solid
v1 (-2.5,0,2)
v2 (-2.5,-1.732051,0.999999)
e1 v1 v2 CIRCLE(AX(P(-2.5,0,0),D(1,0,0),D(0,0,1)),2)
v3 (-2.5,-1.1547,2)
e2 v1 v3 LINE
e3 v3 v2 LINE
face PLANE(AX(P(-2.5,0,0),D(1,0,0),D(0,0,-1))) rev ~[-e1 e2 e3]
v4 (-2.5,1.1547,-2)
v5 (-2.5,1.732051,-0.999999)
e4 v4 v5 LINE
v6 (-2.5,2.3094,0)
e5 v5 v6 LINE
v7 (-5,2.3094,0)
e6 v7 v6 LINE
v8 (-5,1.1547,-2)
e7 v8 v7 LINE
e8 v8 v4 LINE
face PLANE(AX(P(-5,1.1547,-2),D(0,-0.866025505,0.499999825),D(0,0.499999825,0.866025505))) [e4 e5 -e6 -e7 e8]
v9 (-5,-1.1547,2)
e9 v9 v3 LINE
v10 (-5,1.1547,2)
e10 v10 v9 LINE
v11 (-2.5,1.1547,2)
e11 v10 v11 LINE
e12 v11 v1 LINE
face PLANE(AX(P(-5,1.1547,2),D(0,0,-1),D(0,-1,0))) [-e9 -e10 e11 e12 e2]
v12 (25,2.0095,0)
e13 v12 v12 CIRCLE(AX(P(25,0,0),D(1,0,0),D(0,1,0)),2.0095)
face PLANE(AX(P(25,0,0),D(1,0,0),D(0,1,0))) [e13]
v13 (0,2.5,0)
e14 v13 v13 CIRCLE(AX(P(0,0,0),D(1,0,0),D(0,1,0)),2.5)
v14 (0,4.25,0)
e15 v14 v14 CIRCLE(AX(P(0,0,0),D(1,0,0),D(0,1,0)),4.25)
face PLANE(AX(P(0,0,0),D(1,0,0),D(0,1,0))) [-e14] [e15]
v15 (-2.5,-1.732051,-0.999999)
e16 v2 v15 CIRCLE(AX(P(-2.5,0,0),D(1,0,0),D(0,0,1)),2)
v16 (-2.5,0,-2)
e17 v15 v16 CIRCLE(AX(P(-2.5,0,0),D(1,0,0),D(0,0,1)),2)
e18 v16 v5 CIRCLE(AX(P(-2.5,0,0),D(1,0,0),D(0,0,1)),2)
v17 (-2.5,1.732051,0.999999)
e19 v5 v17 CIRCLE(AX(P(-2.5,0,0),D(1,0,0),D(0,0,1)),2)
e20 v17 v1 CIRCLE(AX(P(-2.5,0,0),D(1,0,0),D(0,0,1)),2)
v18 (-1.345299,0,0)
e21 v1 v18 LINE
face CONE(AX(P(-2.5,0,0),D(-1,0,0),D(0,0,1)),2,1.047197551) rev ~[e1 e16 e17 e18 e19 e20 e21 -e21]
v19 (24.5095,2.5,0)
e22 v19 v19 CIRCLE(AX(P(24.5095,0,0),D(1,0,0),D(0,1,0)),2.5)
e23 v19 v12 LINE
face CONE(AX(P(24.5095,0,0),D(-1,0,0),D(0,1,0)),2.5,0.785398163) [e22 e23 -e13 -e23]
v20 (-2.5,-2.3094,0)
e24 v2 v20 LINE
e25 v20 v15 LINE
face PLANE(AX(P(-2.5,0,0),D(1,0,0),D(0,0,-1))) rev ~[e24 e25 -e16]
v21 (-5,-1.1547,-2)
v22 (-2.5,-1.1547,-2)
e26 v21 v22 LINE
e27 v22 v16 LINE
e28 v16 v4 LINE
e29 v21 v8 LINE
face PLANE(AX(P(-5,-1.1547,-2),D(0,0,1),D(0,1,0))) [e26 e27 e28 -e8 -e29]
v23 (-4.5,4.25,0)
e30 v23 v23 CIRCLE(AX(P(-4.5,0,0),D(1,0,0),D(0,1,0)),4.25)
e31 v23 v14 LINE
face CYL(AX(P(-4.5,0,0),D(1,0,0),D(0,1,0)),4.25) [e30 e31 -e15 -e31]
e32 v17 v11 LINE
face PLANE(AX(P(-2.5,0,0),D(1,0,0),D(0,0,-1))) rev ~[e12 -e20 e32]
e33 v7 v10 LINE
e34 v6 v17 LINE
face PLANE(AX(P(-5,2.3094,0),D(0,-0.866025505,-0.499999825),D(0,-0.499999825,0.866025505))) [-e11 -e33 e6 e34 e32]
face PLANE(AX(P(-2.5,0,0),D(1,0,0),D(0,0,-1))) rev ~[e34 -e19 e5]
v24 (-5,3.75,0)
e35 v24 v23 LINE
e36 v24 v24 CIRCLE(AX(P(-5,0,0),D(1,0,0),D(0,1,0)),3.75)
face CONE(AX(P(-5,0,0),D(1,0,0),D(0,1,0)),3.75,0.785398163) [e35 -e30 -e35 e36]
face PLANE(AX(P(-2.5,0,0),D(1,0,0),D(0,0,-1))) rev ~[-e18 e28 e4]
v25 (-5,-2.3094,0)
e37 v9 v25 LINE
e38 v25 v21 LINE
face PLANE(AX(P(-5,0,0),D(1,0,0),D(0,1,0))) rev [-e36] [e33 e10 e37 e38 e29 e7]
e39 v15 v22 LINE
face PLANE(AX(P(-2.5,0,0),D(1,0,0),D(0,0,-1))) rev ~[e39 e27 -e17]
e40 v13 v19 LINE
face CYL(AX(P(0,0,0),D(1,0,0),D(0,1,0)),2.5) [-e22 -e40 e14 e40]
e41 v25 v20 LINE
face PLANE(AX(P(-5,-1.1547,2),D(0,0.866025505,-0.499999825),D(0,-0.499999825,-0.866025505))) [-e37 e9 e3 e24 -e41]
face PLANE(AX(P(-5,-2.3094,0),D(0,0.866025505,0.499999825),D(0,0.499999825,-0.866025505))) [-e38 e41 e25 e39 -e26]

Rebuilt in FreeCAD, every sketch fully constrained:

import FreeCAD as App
import Part
import Sketcher
Q = App.Units.Quantity

doc = App.newDocument("Part")
body = doc.addObject("PartDesign::Body", "Body")

# Sketch on XY plane
sketch1 = doc.addObject("Sketcher::SketchObject", "Sketch")
body.addObject(sketch1)
sketch1.AttachmentSupport = (doc.XY_Plane, [""])
sketch1.MapMode = "FlatFace"
sketch1.addGeometry([
    Part.LineSegment(App.Vector(-5, 0, 0), App.Vector(25, 0, 0)),  # 0
    Part.LineSegment(App.Vector(25, 0, 0), App.Vector(25, 2, 0)),  # 1
    Part.LineSegment(App.Vector(25, 2, 0), App.Vector(24.5, 2.5, 0)),  # 2
    Part.LineSegment(App.Vector(24.5, 2.5, 0), App.Vector(0, 2.5, 0)),  # 3
    Part.LineSegment(App.Vector(0, 2.5, 0), App.Vector(0, 4.2, 0)),  # 4
    Part.LineSegment(App.Vector(0, 4.2, 0), App.Vector(-4.5, 4.2, 0)),  # 5
    Part.LineSegment(App.Vector(-4.5, 4.2, 0), App.Vector(-5, 3.8, 0)),  # 6
    Part.LineSegment(App.Vector(-5, 3.8, 0), App.Vector(-5, 0, 0)),  # 7
], False)
sketch1.addConstraint([
    Sketcher.Constraint("Coincident", 0, 2, 1, 1),
    Sketcher.Constraint("Coincident", 1, 2, 2, 1),
    Sketcher.Constraint("Coincident", 2, 2, 3, 1),
    Sketcher.Constraint("Coincident", 3, 2, 4, 1),
    Sketcher.Constraint("Coincident", 4, 2, 5, 1),
    Sketcher.Constraint("Coincident", 5, 2, 6, 1),
    Sketcher.Constraint("Coincident", 6, 2, 7, 1),
    Sketcher.Constraint("Coincident", 7, 2, 0, 1),
    Sketcher.Constraint("Horizontal", 0),
    Sketcher.Constraint("Vertical", 1),
    Sketcher.Constraint("Horizontal", 3),
    Sketcher.Constraint("Vertical", 4),
    Sketcher.Constraint("Horizontal", 5),
    Sketcher.Constraint("Vertical", 7),
    Sketcher.Constraint("PointOnObject", 0, 2, -1),
    Sketcher.Constraint("PointOnObject", 3, 2, -2),
    Sketcher.Constraint("Perpendicular", 2, 6),
    Sketcher.Constraint("DistanceX", 0, 1, 0, 2, 30.0),
    Sketcher.Constraint("Angle", 2, Q("135 deg")),
    Sketcher.Constraint("DistanceX", 5, 2, 5, 1, 4.5),
    Sketcher.Constraint("DistanceX", -1, 1, 0, 2, 25.0),
    Sketcher.Constraint("DistanceY", 4, 1, 4, 2, 1.75),
    Sketcher.Constraint("DistanceY", 7, 2, 7, 1, 3.75),
    Sketcher.Constraint("DistanceX", 3, 2, 3, 1, 24.5095),
])
revolution = doc.addObject("PartDesign::Revolution", "Revolution")
body.addObject(revolution)
revolution.Profile = sketch1
revolution.ReferenceAxis = (sketch1, ["H_Axis"])
revolution.Angle = 360

# Sketch on YZ plane
sketch2 = doc.addObject("Sketcher::SketchObject", "Sketch001")
body.addObject(sketch2)
sketch2.AttachmentSupport = (doc.YZ_Plane, [""])
sketch2.MapMode = "FlatFace"
sketch2.AttachmentOffset = App.Placement(App.Vector(0, 0, -5), App.Rotation())
sketch2.addGeometry(Part.Circle(App.Vector(0, 0, 0), App.Vector(0, 0, 1), 2), False)
sketch2.addConstraint([
    Sketcher.Constraint("Coincident", 0, 3, -1, 1),
    Sketcher.Constraint("Diameter", 0, 4.0),
])
doc.recompute()
hole = doc.addObject("PartDesign::Hole", "Hole")
body.addObject(hole)
hole.Profile = sketch2
hole.ThreadType = "None"
hole.Diameter = 4
hole.DepthType = "Dimension"
hole.Depth = 2.5
hole.DrillPoint = "Angled"
hole.DrillPointAngle = 120
hole.Reversed = True

# Sketch on YZ plane
sketch3 = doc.addObject("Sketcher::SketchObject", "Sketch002")
body.addObject(sketch3)
sketch3.AttachmentSupport = (doc.YZ_Plane, [""])
sketch3.MapMode = "FlatFace"
sketch3.AttachmentOffset = App.Placement(App.Vector(0, 0, -5), App.Rotation())
sketch3.addGeometry([
    Part.LineSegment(App.Vector(1.2, 2, 0), App.Vector(-1.2, 2, 0)),  # 0
    Part.LineSegment(App.Vector(-1.2, 2, 0), App.Vector(-2.3, 0, 0)),  # 1
    Part.LineSegment(App.Vector(-2.3, 0, 0), App.Vector(-1.2, -2, 0)),  # 2
    Part.LineSegment(App.Vector(-1.2, -2, 0), App.Vector(1.2, -2, 0)),  # 3
    Part.LineSegment(App.Vector(1.2, -2, 0), App.Vector(2.3, 0, 0)),  # 4
    Part.LineSegment(App.Vector(2.3, 0, 0), App.Vector(1.2, 2, 0)),  # 5
], False)
sketch3.addConstraint([
    Sketcher.Constraint("Coincident", 0, 2, 1, 1),
    Sketcher.Constraint("Coincident", 1, 2, 2, 1),
    Sketcher.Constraint("Coincident", 2, 2, 3, 1),
    Sketcher.Constraint("Coincident", 3, 2, 4, 1),
    Sketcher.Constraint("Coincident", 4, 2, 5, 1),
    Sketcher.Constraint("Coincident", 5, 2, 0, 1),
    Sketcher.Constraint("Horizontal", 0),
    Sketcher.Constraint("Horizontal", 3),
    Sketcher.Constraint("Symmetric", 0, 2, 3, 2, -1, 1),
    Sketcher.Constraint("Symmetric", 1, 2, 4, 2, -1, 1),
    Sketcher.Constraint("PointOnObject", 1, 2, -1),
    Sketcher.Constraint("Parallel", 2, 5),
    Sketcher.Constraint("Vertical", 0, 2, 2, 2),
    Sketcher.Constraint("Angle", 1, Q("-120 deg")),
    Sketcher.Constraint("DistanceY", -1, 1, 0, 2, 2.0),
    Sketcher.Constraint("DistanceX", 0, 2, 0, 1, 2.3094),
])
pocket1 = doc.addObject("PartDesign::Pocket", "Pocket")
body.addObject(pocket1)
pocket1.Profile = sketch3
pocket1.Length = 2.5
pocket1.Reversed = True

doc.recompute()
